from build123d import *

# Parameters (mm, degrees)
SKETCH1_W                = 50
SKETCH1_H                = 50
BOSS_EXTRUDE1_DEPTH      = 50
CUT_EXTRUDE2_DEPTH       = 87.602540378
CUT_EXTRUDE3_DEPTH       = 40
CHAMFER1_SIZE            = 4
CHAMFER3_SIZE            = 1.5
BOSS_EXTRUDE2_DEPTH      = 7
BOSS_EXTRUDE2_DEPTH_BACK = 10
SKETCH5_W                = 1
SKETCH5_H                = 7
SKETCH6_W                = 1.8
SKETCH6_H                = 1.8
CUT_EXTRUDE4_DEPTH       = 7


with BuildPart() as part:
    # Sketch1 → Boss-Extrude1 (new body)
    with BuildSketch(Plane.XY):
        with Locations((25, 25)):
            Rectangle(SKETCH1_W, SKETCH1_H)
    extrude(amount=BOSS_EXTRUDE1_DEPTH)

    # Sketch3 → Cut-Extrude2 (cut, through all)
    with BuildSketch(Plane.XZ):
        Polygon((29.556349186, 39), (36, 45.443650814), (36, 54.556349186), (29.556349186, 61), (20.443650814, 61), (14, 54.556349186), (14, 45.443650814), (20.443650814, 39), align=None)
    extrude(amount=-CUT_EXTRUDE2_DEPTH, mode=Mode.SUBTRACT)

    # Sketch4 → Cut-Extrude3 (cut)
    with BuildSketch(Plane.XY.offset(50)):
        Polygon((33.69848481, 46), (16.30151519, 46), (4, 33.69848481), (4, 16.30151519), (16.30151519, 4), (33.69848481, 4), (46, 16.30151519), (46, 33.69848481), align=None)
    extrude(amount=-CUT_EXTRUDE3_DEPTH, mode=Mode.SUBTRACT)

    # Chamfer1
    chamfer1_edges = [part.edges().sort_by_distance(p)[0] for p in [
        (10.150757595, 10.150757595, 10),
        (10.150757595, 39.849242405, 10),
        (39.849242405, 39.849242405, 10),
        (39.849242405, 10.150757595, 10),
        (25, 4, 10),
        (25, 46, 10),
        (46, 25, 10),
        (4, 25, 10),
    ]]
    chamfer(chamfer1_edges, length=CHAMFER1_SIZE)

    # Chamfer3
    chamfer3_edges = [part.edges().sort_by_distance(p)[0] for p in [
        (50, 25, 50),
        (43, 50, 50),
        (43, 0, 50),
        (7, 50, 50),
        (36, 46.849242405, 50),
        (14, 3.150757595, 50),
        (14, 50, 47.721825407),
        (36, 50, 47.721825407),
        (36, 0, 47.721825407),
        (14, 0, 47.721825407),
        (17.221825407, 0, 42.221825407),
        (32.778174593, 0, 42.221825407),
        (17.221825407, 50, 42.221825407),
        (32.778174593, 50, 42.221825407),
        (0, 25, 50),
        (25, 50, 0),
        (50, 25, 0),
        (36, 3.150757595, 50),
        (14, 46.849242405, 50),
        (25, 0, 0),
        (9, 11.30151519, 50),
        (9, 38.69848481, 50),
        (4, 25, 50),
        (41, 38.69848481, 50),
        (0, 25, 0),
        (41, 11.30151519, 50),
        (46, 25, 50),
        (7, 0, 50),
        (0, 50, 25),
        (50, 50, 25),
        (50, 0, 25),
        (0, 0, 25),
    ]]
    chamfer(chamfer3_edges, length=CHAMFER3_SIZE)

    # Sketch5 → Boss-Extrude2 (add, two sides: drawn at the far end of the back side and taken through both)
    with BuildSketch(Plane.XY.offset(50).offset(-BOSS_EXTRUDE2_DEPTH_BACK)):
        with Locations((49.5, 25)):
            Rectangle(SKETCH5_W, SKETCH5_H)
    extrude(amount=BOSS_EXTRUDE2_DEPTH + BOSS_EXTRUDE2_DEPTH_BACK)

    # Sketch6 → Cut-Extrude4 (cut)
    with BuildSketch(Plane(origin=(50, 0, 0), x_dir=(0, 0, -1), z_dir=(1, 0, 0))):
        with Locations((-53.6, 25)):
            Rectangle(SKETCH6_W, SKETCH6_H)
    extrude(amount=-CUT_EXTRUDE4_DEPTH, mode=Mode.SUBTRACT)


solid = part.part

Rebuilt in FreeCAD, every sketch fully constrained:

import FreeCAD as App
import Part
import Sketcher
from FreeCAD import Vector


def edges_at(feature, points):
    """Names of the edges that pass closest to the given points."""
    edges = feature.Shape.Edges
    near = lambda p: min(range(len(edges)), key=lambda i: edges[i].distToShape(Part.Vertex(*p))[0])
    return sorted({f"Edge{near(p) + 1}" for p in points})

doc = App.newDocument("Part")
body = doc.addObject("PartDesign::Body", "Body")

sketch1 = body.newObject("Sketcher::SketchObject", "Sketch")
sketch1.AttachmentSupport = (doc.getObject("XY_Plane"), [""])
sketch1.MapMode = "FlatFace"
sketch1.addGeometry([
    Part.LineSegment(Vector(0, 50, 0), Vector(0, 0, 0)),
    Part.LineSegment(Vector(0, 0, 0), Vector(50, 0, 0)),
    Part.LineSegment(Vector(50, 0, 0), Vector(50, 50, 0)),
    Part.LineSegment(Vector(50, 50, 0), Vector(0, 50, 0)),
], False)
sketch1.addConstraint([
    Sketcher.Constraint("Coincident", 0, 2, 1, 1),
    Sketcher.Constraint("Coincident", 1, 2, 2, 1),
    Sketcher.Constraint("Coincident", 2, 2, 3, 1),
    Sketcher.Constraint("Coincident", 3, 2, 0, 1),
    Sketcher.Constraint("Vertical", 0),
    Sketcher.Constraint("Horizontal", 1),
    Sketcher.Constraint("Vertical", 2),
    Sketcher.Constraint("Horizontal", 3),
    Sketcher.Constraint("Coincident", 0, 2, -1, 1),
    Sketcher.Constraint("Equal", 3, 0),
    Sketcher.Constraint("DistanceX", 1, 1, 1, 2, 50.0),
])
pad1 = body.newObject("PartDesign::Pad", "Pad")
pad1.Profile = sketch1
pad1.Length = 50

sketch2 = body.newObject("Sketcher::SketchObject", "Sketch001")
sketch2.AttachmentSupport = (doc.getObject("XZ_Plane"), [""])
sketch2.MapMode = "FlatFace"
sketch2.addGeometry([
    Part.LineSegment(Vector(29.556349, 39, 0), Vector(36, 45.443651, 0)),
    Part.LineSegment(Vector(36, 45.443651, 0), Vector(36, 54.556349, 0)),
    Part.LineSegment(Vector(36, 54.556349, 0), Vector(29.556349, 61, 0)),
    Part.LineSegment(Vector(29.556349, 61, 0), Vector(20.443651, 61, 0)),
    Part.LineSegment(Vector(20.443651, 61, 0), Vector(14, 54.556349, 0)),
    Part.LineSegment(Vector(14, 54.556349, 0), Vector(14, 45.443651, 0)),
    Part.LineSegment(Vector(14, 45.443651, 0), Vector(20.443651, 39, 0)),
    Part.LineSegment(Vector(20.443651, 39, 0), Vector(29.556349, 39, 0)),
], False)
sketch2.addConstraint([
    Sketcher.Constraint("Coincident", 0, 2, 1, 1),
    Sketcher.Constraint("Coincident", 1, 2, 2, 1),
    Sketcher.Constraint("Coincident", 2, 2, 3, 1),
    Sketcher.Constraint("Coincident", 3, 2, 4, 1),
    Sketcher.Constraint("Coincident", 4, 2, 5, 1),
    Sketcher.Constraint("Coincident", 5, 2, 6, 1),
    Sketcher.Constraint("Coincident", 6, 2, 7, 1),
    Sketcher.Constraint("Coincident", 7, 2, 0, 1),
    Sketcher.Constraint("Vertical", 1),
    Sketcher.Constraint("Horizontal", 3),
    Sketcher.Constraint("Vertical", 5),
    Sketcher.Constraint("Horizontal", 7),
    Sketcher.Constraint("Perpendicular", 0, 2),
    Sketcher.Constraint("Perpendicular", 2, 4),
    Sketcher.Constraint("Perpendicular", 4, 6),
    Sketcher.Constraint("Horizontal", 1, 2, 4, 2),
    Sketcher.Constraint("Horizontal", 0, 2, 5, 2),
    Sketcher.Constraint("Vertical", 3, 2, 6, 2),
    Sketcher.Constraint("Vertical", 2, 2, 7, 2),
    Sketcher.Constraint("Equal", 7, 1),
    Sketcher.Constraint("DistanceX", -1, 1, 0, 2, 36.0),
    Sketcher.Constraint("DistanceY", -1, 1, 2, 2, 61.0),
    Sketcher.Constraint("DistanceX", -1, 1, 4, 2, 14.0),
    Sketcher.Constraint("DistanceX", 3, 2, 3, 1, 9.112698),
])
pocket1 = body.newObject("PartDesign::Pocket", "Pocket")
pocket1.Profile = sketch2
pocket1.Type = "ThroughAll"

sketch3 = body.newObject("Sketcher::SketchObject", "Sketch002")
sketch3.AttachmentSupport = (doc.getObject("XY_Plane"), [""])
sketch3.MapMode = "FlatFace"
sketch3.AttachmentOffset = App.Placement(Vector(0, 0, 50), App.Rotation())
sketch3.addGeometry([
    Part.LineSegment(Vector(33.698485, 46, 0), Vector(16.301515, 46, 0)),
    Part.LineSegment(Vector(16.301515, 46, 0), Vector(4, 33.698485, 0)),
    Part.LineSegment(Vector(4, 33.698485, 0), Vector(4, 16.301515, 0)),
    Part.LineSegment(Vector(4, 16.301515, 0), Vector(16.301515, 4, 0)),
    Part.LineSegment(Vector(16.301515, 4, 0), Vector(33.698485, 4, 0)),
    Part.LineSegment(Vector(33.698485, 4, 0), Vector(46, 16.301515, 0)),
    Part.LineSegment(Vector(46, 16.301515, 0), Vector(46, 33.698485, 0)),
    Part.LineSegment(Vector(46, 33.698485, 0), Vector(33.698485, 46, 0)),
], False)
sketch3.addConstraint([
    Sketcher.Constraint("Coincident", 0, 2, 1, 1),
    Sketcher.Constraint("Coincident", 1, 2, 2, 1),
    Sketcher.Constraint("Coincident", 2, 2, 3, 1),
    Sketcher.Constraint("Coincident", 3, 2, 4, 1),
    Sketcher.Constraint("Coincident", 4, 2, 5, 1),
    Sketcher.Constraint("Coincident", 5, 2, 6, 1),
    Sketcher.Constraint("Coincident", 6, 2, 7, 1),
    Sketcher.Constraint("Coincident", 7, 2, 0, 1),
    Sketcher.Constraint("Horizontal", 0),
    Sketcher.Constraint("Vertical", 2),
    Sketcher.Constraint("Horizontal", 4),
    Sketcher.Constraint("Vertical", 6),
    Sketcher.Constraint("Perpendicular", 1, 3),
    Sketcher.Constraint("Perpendicular", 3, 5),
    Sketcher.Constraint("Perpendicular", 5, 7),
    Sketcher.Constraint("Horizontal", 2, 2, 5, 2),
    Sketcher.Constraint("Horizontal", 1, 2, 6, 2),
    Sketcher.Constraint("Vertical", 0, 2, 3, 2),
    Sketcher.Constraint("Vertical", 4, 2, 7, 2),
    Sketcher.Constraint("Equal", 4, 2),
    Sketcher.Constraint("DistanceY", -1, 1, 0, 2, 46.0),
    Sketcher.Constraint("DistanceX", -1, 1, 1, 2, 4.0),
    Sketcher.Constraint("DistanceY", -1, 1, 3, 2, 4.0),
    Sketcher.Constraint("DistanceX", 0, 2, 0, 1, 17.39697),
])
pocket2 = body.newObject("PartDesign::Pocket", "Pocket001")
pocket2.Profile = sketch3
pocket2.Length = 40
doc.recompute()

chamfer = body.newObject("PartDesign::Chamfer", "Chamfer")
chamfer.Base = (pocket2, edges_at(pocket2, [
    (10.151, 10.151, 10),
    (10.151, 39.849, 10),
    (39.849, 39.849, 10),
    (39.849, 10.151, 10),
    (25, 4, 10),
    (25, 46, 10),
    (46, 25, 10),
    (4, 25, 10),
]))
chamfer.Size = 4
doc.recompute()

chamfer2 = body.newObject("PartDesign::Chamfer", "Chamfer001")
chamfer2.Base = (chamfer, edges_at(chamfer, [
    (50, 25, 50),
    (43, 50, 50),
    (43, 0, 50),
    (7, 50, 50),
    (36, 46.849, 50),
    (14, 3.151, 50),
    (14, 50, 47.722),
    (36, 50, 47.722),
    (36, 0, 47.722),
    (14, 0, 47.722),
    (17.222, 0, 42.222),
    (32.778, 0, 42.222),
    (17.222, 50, 42.222),
    (32.778, 50, 42.222),
    (0, 25, 50),
    (25, 50, 0),
    (50, 25, 0),
    (36, 3.151, 50),
    (14, 46.849, 50),
    (25, 0, 0),
    (9, 11.302, 50),
    (9, 38.698, 50),
    (4, 25, 50),
    (41, 38.698, 50),
    (0, 25, 0),
    (41, 11.302, 50),
    (46, 25, 50),
    (7, 0, 50),
    (0, 50, 25),
    (50, 50, 25),
    (50, 0, 25),
    (0, 0, 25),
]))
chamfer2.Size = 1.5

sketch4 = body.newObject("Sketcher::SketchObject", "Sketch003")
sketch4.AttachmentSupport = (doc.getObject("XY_Plane"), [""])
sketch4.MapMode = "FlatFace"
sketch4.AttachmentOffset = App.Placement(Vector(0, 0, 50), App.Rotation())
sketch4.addGeometry([
    Part.LineSegment(Vector(49, 28.5, 0), Vector(49, 21.5, 0)),
    Part.LineSegment(Vector(49, 21.5, 0), Vector(50, 21.5, 0)),
    Part.LineSegment(Vector(50, 21.5, 0), Vector(50, 28.5, 0)),
    Part.LineSegment(Vector(50, 28.5, 0), Vector(49, 28.5, 0)),
], False)
sketch4.addConstraint([
    Sketcher.Constraint("Coincident", 0, 2, 1, 1),
    Sketcher.Constraint("Coincident", 1, 2, 2, 1),
    Sketcher.Constraint("Coincident", 2, 2, 3, 1),
    Sketcher.Constraint("Coincident", 3, 2, 0, 1),
    Sketcher.Constraint("Vertical", 0),
    Sketcher.Constraint("Horizontal", 1),
    Sketcher.Constraint("Vertical", 2),
    Sketcher.Constraint("Horizontal", 3),
    Sketcher.Constraint("DistanceX", 1, 1, 1, 2, 1.0),
    Sketcher.Constraint("DistanceY", 0, 2, 0, 1, 7.0),
    Sketcher.Constraint("DistanceX", -1, 1, 0, 2, 49.0),
    Sketcher.Constraint("DistanceY", -1, 1, 0, 2, 21.5),
])
pad2 = body.newObject("PartDesign::Pad", "Pad001")
pad2.Profile = sketch4
pad2.Type = "TwoLengths"
pad2.Length = 7
pad2.Length2 = 10

sketch5 = body.newObject("Sketcher::SketchObject", "Sketch004")
sketch5.AttachmentSupport = (doc.getObject("YZ_Plane"), [""])
sketch5.MapMode = "FlatFace"
sketch5.AttachmentOffset = App.Placement(Vector(0, 0, 50), App.Rotation())
sketch5.addGeometry([
    Part.LineSegment(Vector(25.9, 54.5, 0), Vector(24.1, 54.5, 0)),
    Part.LineSegment(Vector(24.1, 54.5, 0), Vector(24.1, 52.7, 0)),
    Part.LineSegment(Vector(24.1, 52.7, 0), Vector(25.9, 52.7, 0)),
    Part.LineSegment(Vector(25.9, 52.7, 0), Vector(25.9, 54.5, 0)),
], False)
sketch5.addConstraint([
    Sketcher.Constraint("Coincident", 0, 2, 1, 1),
    Sketcher.Constraint("Coincident", 1, 2, 2, 1),
    Sketcher.Constraint("Coincident", 2, 2, 3, 1),
    Sketcher.Constraint("Coincident", 3, 2, 0, 1),
    Sketcher.Constraint("Horizontal", 0),
    Sketcher.Constraint("Vertical", 1),
    Sketcher.Constraint("Horizontal", 2),
    Sketcher.Constraint("Vertical", 3),
    Sketcher.Constraint("Equal", 2, 1),
    Sketcher.Constraint("DistanceX", 0, 2, 0, 1, 1.8),
    Sketcher.Constraint("DistanceX", -1, 1, 0, 2, 24.1),
    Sketcher.Constraint("DistanceY", -1, 1, 0, 2, 54.5),
])
pocket3 = body.newObject("PartDesign::Pocket", "Pocket002")
pocket3.Profile = sketch5
pocket3.Length = 7

doc.recompute()
